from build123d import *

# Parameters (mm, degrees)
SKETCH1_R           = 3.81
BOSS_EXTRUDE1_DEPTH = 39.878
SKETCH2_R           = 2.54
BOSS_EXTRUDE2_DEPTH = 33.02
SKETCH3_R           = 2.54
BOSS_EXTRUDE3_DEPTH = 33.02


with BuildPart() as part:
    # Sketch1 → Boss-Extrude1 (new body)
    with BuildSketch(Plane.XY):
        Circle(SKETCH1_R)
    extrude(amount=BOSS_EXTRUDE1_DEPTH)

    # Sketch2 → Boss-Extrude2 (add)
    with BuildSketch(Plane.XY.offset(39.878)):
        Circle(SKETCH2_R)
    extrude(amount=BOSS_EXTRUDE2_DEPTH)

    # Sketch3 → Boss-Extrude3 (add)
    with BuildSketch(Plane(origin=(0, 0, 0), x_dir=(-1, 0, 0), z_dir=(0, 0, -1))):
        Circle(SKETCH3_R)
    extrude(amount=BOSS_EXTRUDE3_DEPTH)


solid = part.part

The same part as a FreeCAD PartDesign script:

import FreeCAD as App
import Part
import Sketcher
from FreeCAD import Vector
Q = App.Units.Quantity

doc = App.newDocument("Part")
body = doc.addObject("PartDesign::Body", "Body")

# Sketch on XY plane
sketch1 = body.newObject("Sketcher::SketchObject", "Sketch")
sketch1.AttachmentSupport = (doc.getObject("XY_Plane"), [""])
sketch1.MapMode = "FlatFace"
sketch1.addGeometry(Part.Circle(Vector(0, 0, 0), Vector(0, 0, 1), 3.81), False)
sketch1.addConstraint(Sketcher.Constraint("Coincident", 0, 3, -1, 1))
sketch1.addConstraint(Sketcher.Constraint("Diameter", 0, Q("0.3 in")))
pad1 = body.newObject("PartDesign::Pad", "Pad")
pad1.Profile = sketch1
pad1.Length = Q("1.57 in")

# Sketch on XY plane
sketch2 = body.newObject("Sketcher::SketchObject", "Sketch001")
sketch2.AttachmentSupport = (doc.getObject("XY_Plane"), [""])
sketch2.MapMode = "FlatFace"
sketch2.AttachmentOffset = App.Placement(Vector(0, 0, 1.57 * 25.4), App.Rotation())
sketch2.addGeometry(Part.Circle(Vector(0, 0, 0), Vector(0, 0, 1), 2.54), False)
sketch2.addConstraint(Sketcher.Constraint("Coincident", 0, 3, -1, 1))
sketch2.addConstraint(Sketcher.Constraint("Diameter", 0, Q("0.2 in")))
pad2 = body.newObject("PartDesign::Pad", "Pad001")
pad2.Profile = sketch2
pad2.Length = Q("1.3 in")

# Sketch on XY plane
sketch3 = body.newObject("Sketcher::SketchObject", "Sketch002")
sketch3.AttachmentSupport = (doc.getObject("XY_Plane"), [""])
sketch3.MapMode = "FlatFace"
sketch3.addGeometry(Part.Circle(Vector(0, 0, 0), Vector(0, 0, 1), 2.54), False)
sketch3.addConstraint(Sketcher.Constraint("Coincident", 0, 3, -1, 1))
sketch3.addConstraint(Sketcher.Constraint("Diameter", 0, Q("0.2 in")))
pad3 = body.newObject("PartDesign::Pad", "Pad002")
pad3.Profile = sketch3
pad3.Length = Q("1.3 in")
pad3.Reversed = True

doc.recompute()
